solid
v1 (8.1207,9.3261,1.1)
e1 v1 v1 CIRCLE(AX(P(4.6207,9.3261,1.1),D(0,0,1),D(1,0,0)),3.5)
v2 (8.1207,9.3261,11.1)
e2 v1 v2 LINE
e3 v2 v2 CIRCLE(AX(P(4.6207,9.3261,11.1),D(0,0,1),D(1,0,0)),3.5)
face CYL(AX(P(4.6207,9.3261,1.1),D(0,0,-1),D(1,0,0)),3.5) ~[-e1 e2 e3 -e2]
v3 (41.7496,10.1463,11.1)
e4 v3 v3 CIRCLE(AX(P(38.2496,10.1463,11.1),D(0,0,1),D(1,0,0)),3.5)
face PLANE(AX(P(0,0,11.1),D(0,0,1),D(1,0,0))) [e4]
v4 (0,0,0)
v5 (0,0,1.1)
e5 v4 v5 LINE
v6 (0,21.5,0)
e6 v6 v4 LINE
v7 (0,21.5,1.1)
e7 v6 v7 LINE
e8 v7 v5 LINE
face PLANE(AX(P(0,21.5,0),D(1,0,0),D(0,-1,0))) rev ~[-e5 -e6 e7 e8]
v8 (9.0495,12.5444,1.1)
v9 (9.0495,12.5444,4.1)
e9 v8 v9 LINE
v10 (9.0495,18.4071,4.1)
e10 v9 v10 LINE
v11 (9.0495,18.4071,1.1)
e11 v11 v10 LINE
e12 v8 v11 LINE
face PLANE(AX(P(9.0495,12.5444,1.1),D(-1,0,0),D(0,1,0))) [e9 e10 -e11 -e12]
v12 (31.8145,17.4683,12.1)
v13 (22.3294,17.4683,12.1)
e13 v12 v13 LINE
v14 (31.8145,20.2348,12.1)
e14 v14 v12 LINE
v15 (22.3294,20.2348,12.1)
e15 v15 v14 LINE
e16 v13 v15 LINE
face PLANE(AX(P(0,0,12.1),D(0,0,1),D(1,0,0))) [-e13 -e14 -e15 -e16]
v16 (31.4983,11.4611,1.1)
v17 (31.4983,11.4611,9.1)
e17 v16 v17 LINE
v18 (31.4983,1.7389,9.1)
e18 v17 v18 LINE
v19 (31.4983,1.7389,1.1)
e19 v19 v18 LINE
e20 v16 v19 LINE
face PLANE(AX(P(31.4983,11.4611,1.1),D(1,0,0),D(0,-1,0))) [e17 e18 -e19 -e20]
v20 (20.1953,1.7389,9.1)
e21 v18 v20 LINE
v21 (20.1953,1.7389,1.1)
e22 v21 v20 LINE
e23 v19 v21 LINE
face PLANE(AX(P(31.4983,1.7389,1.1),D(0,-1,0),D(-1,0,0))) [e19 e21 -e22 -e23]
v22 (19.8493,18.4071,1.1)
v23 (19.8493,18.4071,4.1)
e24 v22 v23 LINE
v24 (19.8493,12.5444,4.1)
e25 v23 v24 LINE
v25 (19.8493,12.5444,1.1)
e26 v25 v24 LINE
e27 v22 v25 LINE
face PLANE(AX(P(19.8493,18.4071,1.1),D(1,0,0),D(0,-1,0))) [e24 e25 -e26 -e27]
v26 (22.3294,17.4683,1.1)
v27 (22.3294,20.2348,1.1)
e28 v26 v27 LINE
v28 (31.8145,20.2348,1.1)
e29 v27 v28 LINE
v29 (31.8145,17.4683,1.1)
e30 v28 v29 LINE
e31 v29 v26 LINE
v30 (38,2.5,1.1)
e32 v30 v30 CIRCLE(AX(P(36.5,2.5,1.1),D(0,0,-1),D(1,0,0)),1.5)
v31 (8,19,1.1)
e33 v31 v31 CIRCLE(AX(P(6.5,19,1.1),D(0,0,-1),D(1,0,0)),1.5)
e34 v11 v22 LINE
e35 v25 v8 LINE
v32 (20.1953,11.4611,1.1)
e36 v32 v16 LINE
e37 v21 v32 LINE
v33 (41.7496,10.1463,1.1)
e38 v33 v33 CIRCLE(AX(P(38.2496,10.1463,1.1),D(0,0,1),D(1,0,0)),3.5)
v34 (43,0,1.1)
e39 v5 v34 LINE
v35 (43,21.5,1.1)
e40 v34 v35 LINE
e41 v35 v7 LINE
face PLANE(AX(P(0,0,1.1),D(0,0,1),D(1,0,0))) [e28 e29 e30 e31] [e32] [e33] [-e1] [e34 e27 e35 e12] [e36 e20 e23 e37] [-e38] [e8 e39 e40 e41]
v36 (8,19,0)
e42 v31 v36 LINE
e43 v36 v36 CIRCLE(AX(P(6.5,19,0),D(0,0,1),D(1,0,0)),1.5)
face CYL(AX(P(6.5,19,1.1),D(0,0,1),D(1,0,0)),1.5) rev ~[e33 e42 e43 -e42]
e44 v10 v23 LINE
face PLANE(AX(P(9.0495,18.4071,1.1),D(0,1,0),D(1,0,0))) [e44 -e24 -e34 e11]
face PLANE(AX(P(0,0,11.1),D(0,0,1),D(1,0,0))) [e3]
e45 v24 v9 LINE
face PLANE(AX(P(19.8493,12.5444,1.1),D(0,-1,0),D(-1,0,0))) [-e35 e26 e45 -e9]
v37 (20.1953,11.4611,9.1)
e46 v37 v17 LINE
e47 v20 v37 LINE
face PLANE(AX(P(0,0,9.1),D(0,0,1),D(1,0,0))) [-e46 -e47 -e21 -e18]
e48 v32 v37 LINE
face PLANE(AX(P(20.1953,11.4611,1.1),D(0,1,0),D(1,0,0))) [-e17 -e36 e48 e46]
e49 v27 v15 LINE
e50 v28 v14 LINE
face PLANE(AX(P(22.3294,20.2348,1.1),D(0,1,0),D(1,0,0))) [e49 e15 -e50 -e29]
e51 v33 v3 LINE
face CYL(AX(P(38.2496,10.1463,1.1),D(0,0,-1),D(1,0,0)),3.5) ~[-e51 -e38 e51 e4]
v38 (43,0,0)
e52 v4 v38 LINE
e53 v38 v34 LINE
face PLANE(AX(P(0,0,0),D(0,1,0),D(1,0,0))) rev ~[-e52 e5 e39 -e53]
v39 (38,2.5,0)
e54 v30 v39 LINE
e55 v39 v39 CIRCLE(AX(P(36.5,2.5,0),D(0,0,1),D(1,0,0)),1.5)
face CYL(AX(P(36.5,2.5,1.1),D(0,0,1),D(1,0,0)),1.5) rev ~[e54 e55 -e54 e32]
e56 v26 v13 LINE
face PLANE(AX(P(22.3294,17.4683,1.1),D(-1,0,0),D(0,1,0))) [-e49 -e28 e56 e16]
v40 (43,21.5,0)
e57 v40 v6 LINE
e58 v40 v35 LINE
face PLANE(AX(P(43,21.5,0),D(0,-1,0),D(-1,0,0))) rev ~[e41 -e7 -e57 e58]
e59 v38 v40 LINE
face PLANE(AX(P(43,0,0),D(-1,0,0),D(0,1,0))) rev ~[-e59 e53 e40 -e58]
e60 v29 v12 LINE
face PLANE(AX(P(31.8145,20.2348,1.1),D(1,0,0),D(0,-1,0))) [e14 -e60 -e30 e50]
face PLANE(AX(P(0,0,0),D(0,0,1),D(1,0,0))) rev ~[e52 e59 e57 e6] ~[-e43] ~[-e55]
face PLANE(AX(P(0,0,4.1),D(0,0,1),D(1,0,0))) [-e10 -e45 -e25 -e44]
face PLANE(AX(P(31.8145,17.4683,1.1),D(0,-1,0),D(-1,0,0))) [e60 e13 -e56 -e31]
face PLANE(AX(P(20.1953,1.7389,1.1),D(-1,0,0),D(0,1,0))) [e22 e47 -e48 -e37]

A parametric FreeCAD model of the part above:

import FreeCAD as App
import Part
import Sketcher
Q = App.Units.Quantity


def add_polygon(sketch, points):
    """Adds a closed chain of lines whose ends are joined by coincident constraints."""
    first, n = sketch.GeometryCount, len(points)
    for a, b in zip(points, points[1:] + points[:1]):
        sketch.addGeometry(Part.LineSegment(App.Vector(*a, 0), App.Vector(*b, 0)), False)
    for i in range(n):
        sketch.addConstraint(Sketcher.Constraint("Coincident", first + i, 2, first + (i + 1) % n, 1))

doc = App.newDocument("Part")
params = doc.addObject("Spreadsheet::Sheet", "Params")
for row, (alias, value) in enumerate([
    ("sketch1_width", "43 mm"),
    ("sketch1_height", "21.5 mm"),
    ("pad1_length", "1.1 mm"),
    ("sketch2_diameter", "3 mm"),
    ("pocket1_length", "1.1 mm"),
    ("sketch3_diameter", "7 mm"),
    ("pad2_length", "10 mm"),
    ("pad3_length", "11 mm"),
    ("pad4_length", "8 mm"),
    ("pad5_length", "3 mm"),
], start=1):
    params.set(f"A{row}", alias)
    params.set(f"B{row}", "=" + value)
    params.setAlias(f"B{row}", alias)

body = doc.addObject("PartDesign::Body", "Body")

sketch1 = body.newObject("Sketcher::SketchObject", "Sketch")
sketch1.AttachmentSupport = (doc.getObject("XY_Plane"), [""])
sketch1.MapMode = "FlatFace"
add_polygon(sketch1, [(0, 21.5), (0, 0), (43, 0), (43, 21.5)])
sketch1.addConstraint(Sketcher.Constraint("Vertical", 0))
sketch1.addConstraint(Sketcher.Constraint("Horizontal", 1))
sketch1.addConstraint(Sketcher.Constraint("Vertical", 2))
sketch1.addConstraint(Sketcher.Constraint("Horizontal", 3))
sketch1.addConstraint(Sketcher.Constraint("Coincident", 0, 2, -1, 1))
sketch1.addConstraint(Sketcher.Constraint("DistanceX", 1, 1, 1, 2, Q("43 mm")))
sketch1.addConstraint(Sketcher.Constraint("DistanceY", 0, 2, 0, 1, Q("21.5 mm")))
sketch1.setExpression("Constraints[9]", "Params.sketch1_width")
sketch1.setExpression("Constraints[10]", "Params.sketch1_height")
pad1 = body.newObject("PartDesign::Pad", "Pad")
pad1.Profile = sketch1
pad1.setExpression("Length", "Params.pad1_length")

sketch2 = body.newObject("Sketcher::SketchObject", "Sketch001")
sketch2.AttachmentSupport = (doc.getObject("XY_Plane"), [""])
sketch2.MapMode = "FlatFace"
sketch2.AttachmentOffset = App.Placement(App.Vector(0, 0, 1.1), App.Rotation())
sketch2.addGeometry(Part.Circle(App.Vector(6.5, 19, 0), App.Vector(0, 0, 1), 1.5), False)
sketch2.addGeometry(Part.Circle(App.Vector(36.5, 2.5, 0), App.Vector(0, 0, 1), 1.5), False)
sketch2.addConstraint(Sketcher.Constraint("Equal", 0, 1))
sketch2.addConstraint(Sketcher.Constraint("Diameter", 0, Q("3 mm")))
sketch2.addConstraint(Sketcher.Constraint("DistanceX", -1, 1, 0, 3, Q("6.5 mm")))
sketch2.addConstraint(Sketcher.Constraint("DistanceY", -1, 1, 1, 3, Q("2.5 mm")))
sketch2.addConstraint(Sketcher.Constraint("DistanceY", -1, 1, 0, 3, Q("19 mm")))
sketch2.addConstraint(Sketcher.Constraint("DistanceX", 0, 3, 1, 3, Q("30 mm")))
sketch2.setExpression("Constraints[1]", "Params.sketch2_diameter")
pocket1 = body.newObject("PartDesign::Pocket", "Pocket")
pocket1.Profile = sketch2
pocket1.setExpression("Length", "Params.pocket1_length")

sketch3 = body.newObject("Sketcher::SketchObject", "Sketch002")
sketch3.AttachmentSupport = (doc.getObject("XY_Plane"), [""])
sketch3.MapMode = "FlatFace"
sketch3.AttachmentOffset = App.Placement(App.Vector(0, 0, 1.1), App.Rotation())
sketch3.addGeometry(Part.Circle(App.Vector(4.6207, 9.3261, 0), App.Vector(0, 0, 1), 3.5), False)
sketch3.addGeometry(Part.Circle(App.Vector(38.2496, 10.1463, 0), App.Vector(0, 0, 1), 3.5), False)
sketch3.addConstraint(Sketcher.Constraint("Equal", 0, 1))
sketch3.addConstraint(Sketcher.Constraint("Diameter", 0, Q("7 mm")))
sketch3.addConstraint(Sketcher.Constraint("DistanceY", -1, 1, 0, 3, Q("9.326 mm")))
sketch3.addConstraint(Sketcher.Constraint("DistanceX", 0, 3, 1, 3, Q("33.629 mm")))
sketch3.addConstraint(Sketcher.Constraint("DistanceX", -1, 1, 0, 3, Q("4.6207 mm")))
sketch3.addConstraint(Sketcher.Constraint("DistanceY", -1, 1, 1, 3, Q("10.1463 mm")))
sketch3.setExpression("Constraints[1]", "Params.sketch3_diameter")
pad2 = body.newObject("PartDesign::Pad", "Pad001")
pad2.Profile = sketch3
pad2.setExpression("Length", "Params.pad2_length")

sketch4 = body.newObject("Sketcher::SketchObject", "Sketch003")
sketch4.AttachmentSupport = (doc.getObject("XY_Plane"), [""])
sketch4.MapMode = "FlatFace"
sketch4.AttachmentOffset = App.Placement(App.Vector(0, 0, 1.1), App.Rotation())
add_polygon(sketch4, [(31.8145, 17.4683), (31.8145, 20.2348), (22.3294, 20.2348), (22.3294, 17.4683)])
sketch4.addConstraint(Sketcher.Constraint("Vertical", 0))
sketch4.addConstraint(Sketcher.Constraint("Horizontal", 1))
sketch4.addConstraint(Sketcher.Constraint("Vertical", 2))
sketch4.addConstraint(Sketcher.Constraint("Horizontal", 3))
sketch4.addConstraint(Sketcher.Constraint("DistanceX", 1, 2, 1, 1, Q("9.485 mm")))
sketch4.addConstraint(Sketcher.Constraint("DistanceY", 0, 1, 0, 2, Q("2.7665 mm")))
sketch4.addConstraint(Sketcher.Constraint("DistanceX", -1, 1, 0, 2, Q("31.8145 mm")))
sketch4.addConstraint(Sketcher.Constraint("DistanceY", -1, 1, 0, 2, Q("20.2348 mm")))
pad3 = body.newObject("PartDesign::Pad", "Pad002")
pad3.Profile = sketch4
pad3.setExpression("Length", "Params.pad3_length")

sketch5 = body.newObject("Sketcher::SketchObject", "Sketch004")
sketch5.AttachmentSupport = (doc.getObject("XY_Plane"), [""])
sketch5.MapMode = "FlatFace"
sketch5.AttachmentOffset = App.Placement(App.Vector(0, 0, 1.1), App.Rotation())
add_polygon(sketch5, [(31.4983, 1.7389), (31.4983, 11.4611), (20.1953, 11.4611), (20.1953, 1.7389)])
sketch5.addConstraint(Sketcher.Constraint("Vertical", 0))
sketch5.addConstraint(Sketcher.Constraint("Horizontal", 1))
sketch5.addConstraint(Sketcher.Constraint("Vertical", 2))
sketch5.addConstraint(Sketcher.Constraint("Horizontal", 3))
sketch5.addConstraint(Sketcher.Constraint("DistanceX", 1, 2, 1, 1, Q("11.303 mm")))
sketch5.addConstraint(Sketcher.Constraint("DistanceY", 0, 1, 0, 2, Q("9.7222 mm")))
sketch5.addConstraint(Sketcher.Constraint("DistanceY", -1, 1, 0, 2, Q("11.461 mm")))
sketch5.addConstraint(Sketcher.Constraint("DistanceX", -1, 1, 0, 2, Q("31.4983 mm")))
pad4 = body.newObject("PartDesign::Pad", "Pad003")
pad4.Profile = sketch5
pad4.setExpression("Length", "Params.pad4_length")

sketch6 = body.newObject("Sketcher::SketchObject", "Sketch005")
sketch6.AttachmentSupport = (doc.getObject("XY_Plane"), [""])
sketch6.MapMode = "FlatFace"
sketch6.AttachmentOffset = App.Placement(App.Vector(0, 0, 1.1), App.Rotation())
add_polygon(sketch6, [(19.8493, 18.4071), (9.0495, 18.4071), (9.0495, 12.5444), (19.8493, 12.5444)])
sketch6.addConstraint(Sketcher.Constraint("Horizontal", 0))
sketch6.addConstraint(Sketcher.Constraint("Vertical", 1))
sketch6.addConstraint(Sketcher.Constraint("Horizontal", 2))
sketch6.addConstraint(Sketcher.Constraint("Vertical", 3))
sketch6.addConstraint(Sketcher.Constraint("DistanceX", 0, 2, 0, 1, Q("10.7998 mm")))
sketch6.addConstraint(Sketcher.Constraint("DistanceY", 1, 2, 1, 1, Q("5.8627 mm")))
sketch6.addConstraint(Sketcher.Constraint("DistanceY", -1, 1, 0, 2, Q("18.407 mm")))
sketch6.addConstraint(Sketcher.Constraint("DistanceX", -1, 1, 0, 2, Q("9.0495 mm")))
pad5 = body.newObject("PartDesign::Pad", "Pad004")
pad5.Profile = sketch6
pad5.setExpression("Length", "Params.pad5_length")

doc.recompute()
